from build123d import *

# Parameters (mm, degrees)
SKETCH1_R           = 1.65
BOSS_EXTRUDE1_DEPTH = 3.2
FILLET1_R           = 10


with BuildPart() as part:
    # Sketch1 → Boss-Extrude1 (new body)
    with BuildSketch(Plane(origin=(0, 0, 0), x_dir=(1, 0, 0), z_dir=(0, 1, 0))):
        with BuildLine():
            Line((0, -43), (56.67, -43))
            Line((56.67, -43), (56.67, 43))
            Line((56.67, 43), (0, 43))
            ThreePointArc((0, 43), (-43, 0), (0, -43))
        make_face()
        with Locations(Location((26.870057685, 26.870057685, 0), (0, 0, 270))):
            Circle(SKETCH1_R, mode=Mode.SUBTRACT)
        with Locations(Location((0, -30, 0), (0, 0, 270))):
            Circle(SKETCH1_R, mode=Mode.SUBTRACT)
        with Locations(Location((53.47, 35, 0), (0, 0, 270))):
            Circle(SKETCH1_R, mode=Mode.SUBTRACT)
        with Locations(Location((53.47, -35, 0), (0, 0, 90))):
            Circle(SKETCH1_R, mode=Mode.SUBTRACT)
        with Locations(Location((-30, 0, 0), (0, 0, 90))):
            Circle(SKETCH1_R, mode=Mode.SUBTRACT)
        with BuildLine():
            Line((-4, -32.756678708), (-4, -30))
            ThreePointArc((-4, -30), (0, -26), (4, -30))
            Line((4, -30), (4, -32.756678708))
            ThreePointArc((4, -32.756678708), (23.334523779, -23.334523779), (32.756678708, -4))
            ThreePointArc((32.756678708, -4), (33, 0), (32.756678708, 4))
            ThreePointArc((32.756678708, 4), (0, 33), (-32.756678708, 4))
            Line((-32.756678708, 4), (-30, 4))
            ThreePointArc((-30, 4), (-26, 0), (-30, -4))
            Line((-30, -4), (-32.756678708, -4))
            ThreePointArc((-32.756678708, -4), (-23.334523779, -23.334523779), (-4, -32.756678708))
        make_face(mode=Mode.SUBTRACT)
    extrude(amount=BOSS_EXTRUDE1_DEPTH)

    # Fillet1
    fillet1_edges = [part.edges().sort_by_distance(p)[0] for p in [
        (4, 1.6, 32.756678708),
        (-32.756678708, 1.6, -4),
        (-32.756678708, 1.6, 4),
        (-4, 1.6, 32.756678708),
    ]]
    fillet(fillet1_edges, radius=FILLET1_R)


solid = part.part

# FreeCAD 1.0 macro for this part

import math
import FreeCAD as App
import Part
import Sketcher

V = App.Vector


def edges_at(feature, points):
    """Names of the edges that pass closest to the given points."""
    edges = feature.Shape.Edges
    near = lambda p: min(range(len(edges)), key=lambda i: edges[i].distToShape(Part.Vertex(*p))[0])
    return sorted({f"Edge{near(p) + 1}" for p in points})

doc = App.newDocument("Part")
params = doc.addObject("Spreadsheet::Sheet", "Params")
for row, (alias, value) in enumerate([
    ("sketch1_radius", "43 mm"),
    ("sketch1_radius2", "33 mm"),
    ("sketch1_radius3", "4 mm"),
    ("sketch1_diameter", "3.3 mm"),
    ("sketch1_width", "56.67 mm"),
    ("pad1_length", "3.2 mm"),
    ("fillet_radius", "10 mm"),
], start=1):
    params.set(f"A{row}", alias)
    params.set(f"B{row}", "=" + value)
    params.setAlias(f"B{row}", alias)

body = doc.addObject("PartDesign::Body", "Body")

# Sketch on XZ plane
sketch1 = doc.addObject("Sketcher::SketchObject", "Sketch")
body.addObject(sketch1)
sketch1.AttachmentSupport = (doc.XZ_Plane, [""])
sketch1.MapMode = "FlatFace"
sketch1.addGeometry(Part.LineSegment(V(0, 43, 0), V(56.7, 43, 0)), False)
sketch1.addGeometry(Part.LineSegment(V(56.7, 43, 0), V(56.7, -43, 0)), False)
sketch1.addGeometry(Part.LineSegment(V(56.7, -43, 0), V(0, -43, 0)), False)
sketch1.addGeometry(Part.ArcOfCircle(Part.Circle(V(0, 0, 0), V(0, 0, 1), 43), math.radians(90), math.radians(270)), False)
sketch1.addGeometry(Part.Circle(V(0, 30, 0), V(0, 0, 1), 1.6), False)
sketch1.addGeometry(Part.Circle(V(53.5, 35, 0), V(0, 0, 1), 1.6), False)
sketch1.addGeometry(Part.Circle(V(-30, 0, 0), V(0, 0, 1), 1.6), False)
sketch1.addGeometry(Part.LineSegment(V(-4, 30, 0), V(-4, 32.8, 0)), False)
sketch1.addGeometry(Part.ArcOfCircle(Part.Circle(V(0, 0, 0), V(0, 0, 1), 33), math.radians(97), math.radians(173)), False)
sketch1.addGeometry(Part.LineSegment(V(-32.8, 4, 0), V(-30, 4, 0)), False)
sketch1.addGeometry(Part.ArcOfCircle(Part.Circle(V(-30, 0, 0), V(0, 0, 1), 4), math.radians(-90), math.radians(90)), False)
sketch1.addGeometry(Part.LineSegment(V(-30, -4, 0), V(-32.8, -4, 0)), False)
sketch1.addGeometry(Part.ArcOfCircle(Part.Circle(V(0, 0, 0), V(0, 0, 1), 33), math.radians(-173), math.radians(-7)), False)
sketch1.addGeometry(Part.ArcOfCircle(Part.Circle(V(0, 0, 0), V(0, 0, 1), 33), math.radians(-6.96), math.radians(6.96)), False)
sketch1.addGeometry(Part.ArcOfCircle(Part.Circle(V(0, 0, 0), V(0, 0, 1), 33), math.radians(7), math.radians(83)), False)
sketch1.addGeometry(Part.LineSegment(V(4, 32.8, 0), V(4, 30, 0)), False)
sketch1.addGeometry(Part.ArcOfCircle(Part.Circle(V(0, 30, 0), V(0, 0, 1), 4), math.radians(180), math.radians(360)), False)
sketch1.addGeometry(Part.Circle(V(26.9, -26.9, 0), V(0, 0, 1), 1.6), False)
sketch1.addGeometry(Part.Circle(V(53.5, -35, 0), V(0, 0, 1), 1.6), False)
sketch1.addConstraint(Sketcher.Constraint("Coincident", 0, 2, 1, 1))
sketch1.addConstraint(Sketcher.Constraint("Coincident", 1, 2, 2, 1))
sketch1.addConstraint(Sketcher.Constraint("Tangent", 2, 2, 3, 2))
sketch1.addConstraint(Sketcher.Constraint("Tangent", 3, 1, 0, 1))
sketch1.addConstraint(Sketcher.Constraint("Coincident", 7, 2, 8, 1))
sketch1.addConstraint(Sketcher.Constraint("Coincident", 8, 2, 9, 1))
sketch1.addConstraint(Sketcher.Constraint("Tangent", 9, 2, 10, 2))
sketch1.addConstraint(Sketcher.Constraint("Tangent", 10, 1, 11, 1))
sketch1.addConstraint(Sketcher.Constraint("Coincident", 11, 2, 12, 1))
sketch1.addConstraint(Sketcher.Constraint("Tangent", 12, 2, 13, 1))
sketch1.addConstraint(Sketcher.Constraint("Tangent", 13, 2, 14, 1))
sketch1.addConstraint(Sketcher.Constraint("Coincident", 14, 2, 15, 1))
sketch1.addConstraint(Sketcher.Constraint("Tangent", 15, 2, 16, 2))
sketch1.addConstraint(Sketcher.Constraint("Tangent", 16, 1, 7, 1))
sketch1.addConstraint(Sketcher.Constraint("Horizontal", 0))
sketch1.addConstraint(Sketcher.Constraint("Vertical", 1))
sketch1.addConstraint(Sketcher.Constraint("Horizontal", 2))
sketch1.addConstraint(Sketcher.Constraint("Vertical", 7))
sketch1.addConstraint(Sketcher.Constraint("Horizontal", 9))
sketch1.addConstraint(Sketcher.Constraint("Horizontal", 11))
sketch1.addConstraint(Sketcher.Constraint("Vertical", 15))
sketch1.addConstraint(Sketcher.Constraint("Coincident", 3, 3, -1, 1))
sketch1.addConstraint(Sketcher.Constraint("Coincident", 8, 3, -1, 1))
sketch1.addConstraint(Sketcher.Constraint("Coincident", 12, 3, -1, 1))
sketch1.addConstraint(Sketcher.Constraint("Coincident", 14, 3, -1, 1))
sketch1.addConstraint(Sketcher.Constraint("Coincident", 10, 3, 6, 3))
sketch1.addConstraint(Sketcher.Constraint("Coincident", 16, 3, 4, 3))
sketch1.addConstraint(Sketcher.Constraint("Equal", 4, 5))
sketch1.addConstraint(Sketcher.Constraint("Equal", 5, 6))
sketch1.addConstraint(Sketcher.Constraint("Equal", 8, 12))
sketch1.addConstraint(Sketcher.Constraint("Equal", 10, 16))
sketch1.addConstraint(Sketcher.Constraint("Equal", 6, 17))
sketch1.addConstraint(Sketcher.Constraint("Equal", 17, 18))
sketch1.addConstraint(Sketcher.Constraint("Symmetric", 5, 3, 18, 3, -1))
sketch1.addConstraint(Sketcher.Constraint("PointOnObject", 4, 3, -2))
sketch1.addConstraint(Sketcher.Constraint("PointOnObject", 6, 3, -1))
sketch1.addConstraint(Sketcher.Constraint("Horizontal", 11, 2, 12, 2))
sketch1.addConstraint(Sketcher.Constraint("Horizontal", 9, 2, 13, 2))
sketch1.addConstraint(Sketcher.Constraint("Equal", 11, 7))
sketch1.addConstraint(Sketcher.Constraint("Radius", 3, 43.0))
sketch1.addConstraint(Sketcher.Constraint("Radius", 8, 33.0))
sketch1.addConstraint(Sketcher.Constraint("Radius", 10, 4.0))
sketch1.addConstraint(Sketcher.Constraint("Diameter", 4, 3.3))
sketch1.addConstraint(Sketcher.Constraint("DistanceY", -1, 1, 4, 3, 30.0))
sketch1.addConstraint(Sketcher.Constraint("DistanceY", -1, 1, 5, 3, 35.0))
sketch1.addConstraint(Sketcher.Constraint("DistanceX", 0, 1, 0, 2, 56.67))
sketch1.addConstraint(Sketcher.Constraint("DistanceX", 5, 3, 0, 2, 3.2))
sketch1.addConstraint(Sketcher.Constraint("DistanceX", 17, 3, 12, 2, 5.886621))
sketch1.addConstraint(Sketcher.Constraint("DistanceY", 17, 3, -1, 1, 26.870058))
sketch1.setExpression("Constraints[39]", "Params.sketch1_radius")
sketch1.setExpression("Constraints[40]", "Params.sketch1_radius2")
sketch1.setExpression("Constraints[41]", "Params.sketch1_radius3")
sketch1.setExpression("Constraints[42]", "Params.sketch1_diameter")
sketch1.setExpression("Constraints[45]", "Params.sketch1_width")
pad1 = doc.addObject("PartDesign::Pad", "Pad")
body.addObject(pad1)
pad1.Profile = sketch1
pad1.setExpression("Length", "Params.pad1_length")
pad1.Reversed = True
doc.recompute()

fillet = doc.addObject("PartDesign::Fillet", "Fillet")
body.addObject(fillet)
fillet.Base = (pad1, edges_at(pad1, [
    (4, 1.6, 32.757),
    (-32.757, 1.6, -4),
    (-32.757, 1.6, 4),
    (-4, 1.6, 32.757),
]))
fillet.setExpression("Radius", "Params.fillet_radius")

doc.recompute()
